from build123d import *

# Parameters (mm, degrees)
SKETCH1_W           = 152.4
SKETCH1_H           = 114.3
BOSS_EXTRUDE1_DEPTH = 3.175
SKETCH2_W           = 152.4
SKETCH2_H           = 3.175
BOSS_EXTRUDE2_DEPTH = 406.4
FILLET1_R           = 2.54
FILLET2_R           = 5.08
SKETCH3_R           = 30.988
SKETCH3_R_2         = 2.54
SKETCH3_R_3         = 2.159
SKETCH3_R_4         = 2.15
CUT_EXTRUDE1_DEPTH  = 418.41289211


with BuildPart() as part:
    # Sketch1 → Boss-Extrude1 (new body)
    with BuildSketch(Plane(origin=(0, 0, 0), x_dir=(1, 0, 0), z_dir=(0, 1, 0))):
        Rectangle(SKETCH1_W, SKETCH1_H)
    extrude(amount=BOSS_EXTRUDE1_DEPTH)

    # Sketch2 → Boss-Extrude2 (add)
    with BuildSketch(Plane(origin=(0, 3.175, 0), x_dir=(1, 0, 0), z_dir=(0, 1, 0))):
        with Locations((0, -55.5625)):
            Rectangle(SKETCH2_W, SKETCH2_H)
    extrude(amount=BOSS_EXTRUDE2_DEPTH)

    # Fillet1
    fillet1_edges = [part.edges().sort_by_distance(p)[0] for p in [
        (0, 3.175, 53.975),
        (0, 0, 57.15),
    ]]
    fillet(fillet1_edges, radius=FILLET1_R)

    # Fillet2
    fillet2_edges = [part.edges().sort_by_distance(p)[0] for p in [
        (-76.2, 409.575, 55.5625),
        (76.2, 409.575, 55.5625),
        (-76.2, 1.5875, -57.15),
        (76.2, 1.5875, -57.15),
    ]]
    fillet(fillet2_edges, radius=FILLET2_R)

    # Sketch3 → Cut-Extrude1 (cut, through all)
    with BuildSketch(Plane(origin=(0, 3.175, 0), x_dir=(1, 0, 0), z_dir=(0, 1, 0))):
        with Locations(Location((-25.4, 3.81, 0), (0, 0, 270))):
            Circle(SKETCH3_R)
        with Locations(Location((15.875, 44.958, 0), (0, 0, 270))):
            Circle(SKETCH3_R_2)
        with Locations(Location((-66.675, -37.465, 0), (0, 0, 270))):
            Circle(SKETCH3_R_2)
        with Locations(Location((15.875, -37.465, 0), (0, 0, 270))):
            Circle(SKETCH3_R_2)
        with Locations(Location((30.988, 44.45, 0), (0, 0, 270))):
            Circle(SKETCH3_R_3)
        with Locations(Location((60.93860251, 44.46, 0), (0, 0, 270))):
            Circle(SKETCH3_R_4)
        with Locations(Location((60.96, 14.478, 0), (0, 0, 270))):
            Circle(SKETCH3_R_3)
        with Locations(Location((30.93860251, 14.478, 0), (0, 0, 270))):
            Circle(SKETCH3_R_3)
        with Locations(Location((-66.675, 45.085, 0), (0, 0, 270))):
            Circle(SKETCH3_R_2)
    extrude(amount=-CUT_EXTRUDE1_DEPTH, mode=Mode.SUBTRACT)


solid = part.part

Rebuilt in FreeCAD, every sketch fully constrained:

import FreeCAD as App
import Part
import Sketcher
Q = App.Units.Quantity


def edges_at(feature, points):
    """Names of the edges that pass closest to the given points."""
    edges = feature.Shape.Edges
    near = lambda p: min(range(len(edges)), key=lambda i: edges[i].distToShape(Part.Vertex(*p))[0])
    return sorted({f"Edge{near(p) + 1}" for p in points})


def add_polygon(sketch, points):
    """Adds a closed chain of lines whose ends are joined by coincident constraints."""
    first, n = sketch.GeometryCount, len(points)
    for a, b in zip(points, points[1:] + points[:1]):
        sketch.addGeometry(Part.LineSegment(App.Vector(*a, 0), App.Vector(*b, 0)), False)
    for i in range(n):
        sketch.addConstraint(Sketcher.Constraint("Coincident", first + i, 2, first + (i + 1) % n, 1))

doc = App.newDocument("Part")
body = doc.addObject("PartDesign::Body", "Body")

# Sketch on XZ plane
sketch1 = body.newObject("Sketcher::SketchObject", "Sketch")
sketch1.AttachmentSupport = (doc.getObject("XZ_Plane"), [""])
sketch1.MapMode = "FlatFace"
add_polygon(sketch1, [(-76, -57), (-76, 57), (76, 57), (76, -57)])  # lines 0-3
sketch1.addConstraint([
    Sketcher.Constraint("Vertical", 0),
    Sketcher.Constraint("Horizontal", 1),
    Sketcher.Constraint("Vertical", 2),
    Sketcher.Constraint("Horizontal", 3),
    Sketcher.Constraint("Symmetric", 0, 2, 2, 2, -1, 1),
    Sketcher.Constraint("DistanceX", 1, 1, 1, 2, Q("6 in")),
    Sketcher.Constraint("DistanceY", 0, 1, 0, 2, Q("4.5 in")),
])
pad1 = body.newObject("PartDesign::Pad", "Pad")
pad1.Profile = sketch1
pad1.Length = Q("0.125 in")
pad1.Reversed = True

# Sketch on XZ plane
sketch2 = body.newObject("Sketcher::SketchObject", "Sketch001")
sketch2.AttachmentSupport = (doc.getObject("XZ_Plane"), [""])
sketch2.MapMode = "FlatFace"
sketch2.AttachmentOffset = App.Placement(App.Vector(0, 0, -0.125 * 25.4), App.Rotation())
add_polygon(sketch2, [(-76.2, 54), (-76.2, 57.1), (76.2, 57.1), (76.2, 54)])  # lines 0-3
sketch2.addConstraint([
    Sketcher.Constraint("Vertical", 0),
    Sketcher.Constraint("Horizontal", 1),
    Sketcher.Constraint("Vertical", 2),
    Sketcher.Constraint("Horizontal", 3),
    Sketcher.Constraint("DistanceX", 1, 1, 1, 2, Q("6 in")),
    Sketcher.Constraint("DistanceX", 0, 2, -1, 1, Q("3 in")),
    Sketcher.Constraint("DistanceY", 0, 1, 0, 2, Q("0.125 in")),
    Sketcher.Constraint("DistanceY", -1, 1, 0, 2, Q("2.25 in")),
])
pad2 = body.newObject("PartDesign::Pad", "Pad001")
pad2.Profile = sketch2
pad2.Length = Q("16 in")
pad2.Reversed = True
doc.recompute()

fillet = body.newObject("PartDesign::Fillet", "Fillet")
fillet.Base = (pad2, edges_at(pad2, [(0, 3.175, 53.975), (0, 0, 57.15)]))
fillet.Radius = Q("0.1 in")
doc.recompute()

fillet2 = body.newObject("PartDesign::Fillet", "Fillet001")
fillet2.Base = (fillet, edges_at(fillet, [
    (-76.2, 409.575, 55.562),
    (76.2, 409.575, 55.562),
    (-76.2, 1.587, -57.15),
    (76.2, 1.587, -57.15),
]))
fillet2.Radius = Q("0.2 in")

# Sketch on XZ plane
sketch3 = body.newObject("Sketcher::SketchObject", "Sketch002")
sketch3.AttachmentSupport = (doc.getObject("XZ_Plane"), [""])
sketch3.MapMode = "FlatFace"
sketch3.AttachmentOffset = App.Placement(App.Vector(0, 0, -0.125 * 25.4), App.Rotation())
sketch3.addGeometry([
    Part.Circle(App.Vector(-25.4, -3.8, 0), App.Vector(0, 0, 1), 31),  # 0
    Part.Circle(App.Vector(15.9, -45, 0), App.Vector(0, 0, 1), 2.5),  # 1
    Part.Circle(App.Vector(-66.7, 37.5, 0), App.Vector(0, 0, 1), 2.5),  # 2
    Part.Circle(App.Vector(15.9, 37.5, 0), App.Vector(0, 0, 1), 2.5),  # 3
    Part.Circle(App.Vector(31, -44.5, 0), App.Vector(0, 0, 1), 2.2),  # 4
    Part.Circle(App.Vector(60.9, -44.5, 0), App.Vector(0, 0, 1), 2.1),  # 5
    Part.Circle(App.Vector(61, -14.5, 0), App.Vector(0, 0, 1), 2.2),  # 6
    Part.Circle(App.Vector(30.9, -14.5, 0), App.Vector(0, 0, 1), 2.2),  # 7
    Part.Circle(App.Vector(-66.7, -45.1, 0), App.Vector(0, 0, 1), 2.5),  # 8
], False)
sketch3.addConstraint([
    Sketcher.Constraint("Equal", 1, 2),
    Sketcher.Constraint("Equal", 2, 3),
    Sketcher.Constraint("Equal", 4, 6),
    Sketcher.Constraint("Equal", 6, 7),
    Sketcher.Constraint("Equal", 3, 8),
    Sketcher.Constraint("Horizontal", 2, 3, 3, 3),
    Sketcher.Constraint("Horizontal", 6, 3, 7, 3),
    Sketcher.Constraint("Vertical", 1, 3, 3, 3),
    Sketcher.Constraint("Vertical", 2, 3, 8, 3),
    Sketcher.Constraint("Diameter", 1, Q("0.2 in")),
    Sketcher.Constraint("Diameter", 0, Q("2.44 in")),
    Sketcher.Constraint("Diameter", 4, Q("0.17 in")),
    Sketcher.Constraint("DistanceX", 0, 3, -1, 1, Q("1 in")),
    Sketcher.Constraint("DistanceX", -1, 1, 6, 3, Q("2.4 in")),
    Sketcher.Constraint("DistanceY", 4, 3, 0, 3, Q("1.6 in")),
    Sketcher.Constraint("DistanceY", 1, 3, 6, 3, Q("1.2 in")),
    Sketcher.Constraint("Diameter", 5, Q("4.3 mm")),
    Sketcher.Constraint("DistanceY", 0, 3, -1, 1, Q("0.15 in")),
    Sketcher.Constraint("DistanceY", 1, 3, -1, 1, Q("1.77 in")),
    Sketcher.Constraint("DistanceX", -1, 1, 4, 3, Q("1.22 in")),
    Sketcher.Constraint("DistanceX", 2, 3, 1, 3, Q("3.25 in")),
    Sketcher.Constraint("DistanceY", 8, 3, 2, 3, Q("3.25 in")),
    Sketcher.Constraint("DistanceX", -1, 1, 1, 3, Q("0.625 in")),
    Sketcher.Constraint("DistanceY", -1, 1, 2, 3, Q("1.475 in")),
    Sketcher.Constraint("DistanceY", 5, 3, -1, 1, Q("44.46 mm")),
    Sketcher.Constraint("DistanceX", 7, 3, 5, 3, Q("30 mm")),
    Sketcher.Constraint("DistanceX", -1, 1, 5, 3, Q("60.938603 mm")),
])
pocket1 = body.newObject("PartDesign::Pocket", "Pocket")
pocket1.Profile = sketch3
pocket1.Type = "ThroughAll"
pocket1.Reversed = True

doc.recompute()
